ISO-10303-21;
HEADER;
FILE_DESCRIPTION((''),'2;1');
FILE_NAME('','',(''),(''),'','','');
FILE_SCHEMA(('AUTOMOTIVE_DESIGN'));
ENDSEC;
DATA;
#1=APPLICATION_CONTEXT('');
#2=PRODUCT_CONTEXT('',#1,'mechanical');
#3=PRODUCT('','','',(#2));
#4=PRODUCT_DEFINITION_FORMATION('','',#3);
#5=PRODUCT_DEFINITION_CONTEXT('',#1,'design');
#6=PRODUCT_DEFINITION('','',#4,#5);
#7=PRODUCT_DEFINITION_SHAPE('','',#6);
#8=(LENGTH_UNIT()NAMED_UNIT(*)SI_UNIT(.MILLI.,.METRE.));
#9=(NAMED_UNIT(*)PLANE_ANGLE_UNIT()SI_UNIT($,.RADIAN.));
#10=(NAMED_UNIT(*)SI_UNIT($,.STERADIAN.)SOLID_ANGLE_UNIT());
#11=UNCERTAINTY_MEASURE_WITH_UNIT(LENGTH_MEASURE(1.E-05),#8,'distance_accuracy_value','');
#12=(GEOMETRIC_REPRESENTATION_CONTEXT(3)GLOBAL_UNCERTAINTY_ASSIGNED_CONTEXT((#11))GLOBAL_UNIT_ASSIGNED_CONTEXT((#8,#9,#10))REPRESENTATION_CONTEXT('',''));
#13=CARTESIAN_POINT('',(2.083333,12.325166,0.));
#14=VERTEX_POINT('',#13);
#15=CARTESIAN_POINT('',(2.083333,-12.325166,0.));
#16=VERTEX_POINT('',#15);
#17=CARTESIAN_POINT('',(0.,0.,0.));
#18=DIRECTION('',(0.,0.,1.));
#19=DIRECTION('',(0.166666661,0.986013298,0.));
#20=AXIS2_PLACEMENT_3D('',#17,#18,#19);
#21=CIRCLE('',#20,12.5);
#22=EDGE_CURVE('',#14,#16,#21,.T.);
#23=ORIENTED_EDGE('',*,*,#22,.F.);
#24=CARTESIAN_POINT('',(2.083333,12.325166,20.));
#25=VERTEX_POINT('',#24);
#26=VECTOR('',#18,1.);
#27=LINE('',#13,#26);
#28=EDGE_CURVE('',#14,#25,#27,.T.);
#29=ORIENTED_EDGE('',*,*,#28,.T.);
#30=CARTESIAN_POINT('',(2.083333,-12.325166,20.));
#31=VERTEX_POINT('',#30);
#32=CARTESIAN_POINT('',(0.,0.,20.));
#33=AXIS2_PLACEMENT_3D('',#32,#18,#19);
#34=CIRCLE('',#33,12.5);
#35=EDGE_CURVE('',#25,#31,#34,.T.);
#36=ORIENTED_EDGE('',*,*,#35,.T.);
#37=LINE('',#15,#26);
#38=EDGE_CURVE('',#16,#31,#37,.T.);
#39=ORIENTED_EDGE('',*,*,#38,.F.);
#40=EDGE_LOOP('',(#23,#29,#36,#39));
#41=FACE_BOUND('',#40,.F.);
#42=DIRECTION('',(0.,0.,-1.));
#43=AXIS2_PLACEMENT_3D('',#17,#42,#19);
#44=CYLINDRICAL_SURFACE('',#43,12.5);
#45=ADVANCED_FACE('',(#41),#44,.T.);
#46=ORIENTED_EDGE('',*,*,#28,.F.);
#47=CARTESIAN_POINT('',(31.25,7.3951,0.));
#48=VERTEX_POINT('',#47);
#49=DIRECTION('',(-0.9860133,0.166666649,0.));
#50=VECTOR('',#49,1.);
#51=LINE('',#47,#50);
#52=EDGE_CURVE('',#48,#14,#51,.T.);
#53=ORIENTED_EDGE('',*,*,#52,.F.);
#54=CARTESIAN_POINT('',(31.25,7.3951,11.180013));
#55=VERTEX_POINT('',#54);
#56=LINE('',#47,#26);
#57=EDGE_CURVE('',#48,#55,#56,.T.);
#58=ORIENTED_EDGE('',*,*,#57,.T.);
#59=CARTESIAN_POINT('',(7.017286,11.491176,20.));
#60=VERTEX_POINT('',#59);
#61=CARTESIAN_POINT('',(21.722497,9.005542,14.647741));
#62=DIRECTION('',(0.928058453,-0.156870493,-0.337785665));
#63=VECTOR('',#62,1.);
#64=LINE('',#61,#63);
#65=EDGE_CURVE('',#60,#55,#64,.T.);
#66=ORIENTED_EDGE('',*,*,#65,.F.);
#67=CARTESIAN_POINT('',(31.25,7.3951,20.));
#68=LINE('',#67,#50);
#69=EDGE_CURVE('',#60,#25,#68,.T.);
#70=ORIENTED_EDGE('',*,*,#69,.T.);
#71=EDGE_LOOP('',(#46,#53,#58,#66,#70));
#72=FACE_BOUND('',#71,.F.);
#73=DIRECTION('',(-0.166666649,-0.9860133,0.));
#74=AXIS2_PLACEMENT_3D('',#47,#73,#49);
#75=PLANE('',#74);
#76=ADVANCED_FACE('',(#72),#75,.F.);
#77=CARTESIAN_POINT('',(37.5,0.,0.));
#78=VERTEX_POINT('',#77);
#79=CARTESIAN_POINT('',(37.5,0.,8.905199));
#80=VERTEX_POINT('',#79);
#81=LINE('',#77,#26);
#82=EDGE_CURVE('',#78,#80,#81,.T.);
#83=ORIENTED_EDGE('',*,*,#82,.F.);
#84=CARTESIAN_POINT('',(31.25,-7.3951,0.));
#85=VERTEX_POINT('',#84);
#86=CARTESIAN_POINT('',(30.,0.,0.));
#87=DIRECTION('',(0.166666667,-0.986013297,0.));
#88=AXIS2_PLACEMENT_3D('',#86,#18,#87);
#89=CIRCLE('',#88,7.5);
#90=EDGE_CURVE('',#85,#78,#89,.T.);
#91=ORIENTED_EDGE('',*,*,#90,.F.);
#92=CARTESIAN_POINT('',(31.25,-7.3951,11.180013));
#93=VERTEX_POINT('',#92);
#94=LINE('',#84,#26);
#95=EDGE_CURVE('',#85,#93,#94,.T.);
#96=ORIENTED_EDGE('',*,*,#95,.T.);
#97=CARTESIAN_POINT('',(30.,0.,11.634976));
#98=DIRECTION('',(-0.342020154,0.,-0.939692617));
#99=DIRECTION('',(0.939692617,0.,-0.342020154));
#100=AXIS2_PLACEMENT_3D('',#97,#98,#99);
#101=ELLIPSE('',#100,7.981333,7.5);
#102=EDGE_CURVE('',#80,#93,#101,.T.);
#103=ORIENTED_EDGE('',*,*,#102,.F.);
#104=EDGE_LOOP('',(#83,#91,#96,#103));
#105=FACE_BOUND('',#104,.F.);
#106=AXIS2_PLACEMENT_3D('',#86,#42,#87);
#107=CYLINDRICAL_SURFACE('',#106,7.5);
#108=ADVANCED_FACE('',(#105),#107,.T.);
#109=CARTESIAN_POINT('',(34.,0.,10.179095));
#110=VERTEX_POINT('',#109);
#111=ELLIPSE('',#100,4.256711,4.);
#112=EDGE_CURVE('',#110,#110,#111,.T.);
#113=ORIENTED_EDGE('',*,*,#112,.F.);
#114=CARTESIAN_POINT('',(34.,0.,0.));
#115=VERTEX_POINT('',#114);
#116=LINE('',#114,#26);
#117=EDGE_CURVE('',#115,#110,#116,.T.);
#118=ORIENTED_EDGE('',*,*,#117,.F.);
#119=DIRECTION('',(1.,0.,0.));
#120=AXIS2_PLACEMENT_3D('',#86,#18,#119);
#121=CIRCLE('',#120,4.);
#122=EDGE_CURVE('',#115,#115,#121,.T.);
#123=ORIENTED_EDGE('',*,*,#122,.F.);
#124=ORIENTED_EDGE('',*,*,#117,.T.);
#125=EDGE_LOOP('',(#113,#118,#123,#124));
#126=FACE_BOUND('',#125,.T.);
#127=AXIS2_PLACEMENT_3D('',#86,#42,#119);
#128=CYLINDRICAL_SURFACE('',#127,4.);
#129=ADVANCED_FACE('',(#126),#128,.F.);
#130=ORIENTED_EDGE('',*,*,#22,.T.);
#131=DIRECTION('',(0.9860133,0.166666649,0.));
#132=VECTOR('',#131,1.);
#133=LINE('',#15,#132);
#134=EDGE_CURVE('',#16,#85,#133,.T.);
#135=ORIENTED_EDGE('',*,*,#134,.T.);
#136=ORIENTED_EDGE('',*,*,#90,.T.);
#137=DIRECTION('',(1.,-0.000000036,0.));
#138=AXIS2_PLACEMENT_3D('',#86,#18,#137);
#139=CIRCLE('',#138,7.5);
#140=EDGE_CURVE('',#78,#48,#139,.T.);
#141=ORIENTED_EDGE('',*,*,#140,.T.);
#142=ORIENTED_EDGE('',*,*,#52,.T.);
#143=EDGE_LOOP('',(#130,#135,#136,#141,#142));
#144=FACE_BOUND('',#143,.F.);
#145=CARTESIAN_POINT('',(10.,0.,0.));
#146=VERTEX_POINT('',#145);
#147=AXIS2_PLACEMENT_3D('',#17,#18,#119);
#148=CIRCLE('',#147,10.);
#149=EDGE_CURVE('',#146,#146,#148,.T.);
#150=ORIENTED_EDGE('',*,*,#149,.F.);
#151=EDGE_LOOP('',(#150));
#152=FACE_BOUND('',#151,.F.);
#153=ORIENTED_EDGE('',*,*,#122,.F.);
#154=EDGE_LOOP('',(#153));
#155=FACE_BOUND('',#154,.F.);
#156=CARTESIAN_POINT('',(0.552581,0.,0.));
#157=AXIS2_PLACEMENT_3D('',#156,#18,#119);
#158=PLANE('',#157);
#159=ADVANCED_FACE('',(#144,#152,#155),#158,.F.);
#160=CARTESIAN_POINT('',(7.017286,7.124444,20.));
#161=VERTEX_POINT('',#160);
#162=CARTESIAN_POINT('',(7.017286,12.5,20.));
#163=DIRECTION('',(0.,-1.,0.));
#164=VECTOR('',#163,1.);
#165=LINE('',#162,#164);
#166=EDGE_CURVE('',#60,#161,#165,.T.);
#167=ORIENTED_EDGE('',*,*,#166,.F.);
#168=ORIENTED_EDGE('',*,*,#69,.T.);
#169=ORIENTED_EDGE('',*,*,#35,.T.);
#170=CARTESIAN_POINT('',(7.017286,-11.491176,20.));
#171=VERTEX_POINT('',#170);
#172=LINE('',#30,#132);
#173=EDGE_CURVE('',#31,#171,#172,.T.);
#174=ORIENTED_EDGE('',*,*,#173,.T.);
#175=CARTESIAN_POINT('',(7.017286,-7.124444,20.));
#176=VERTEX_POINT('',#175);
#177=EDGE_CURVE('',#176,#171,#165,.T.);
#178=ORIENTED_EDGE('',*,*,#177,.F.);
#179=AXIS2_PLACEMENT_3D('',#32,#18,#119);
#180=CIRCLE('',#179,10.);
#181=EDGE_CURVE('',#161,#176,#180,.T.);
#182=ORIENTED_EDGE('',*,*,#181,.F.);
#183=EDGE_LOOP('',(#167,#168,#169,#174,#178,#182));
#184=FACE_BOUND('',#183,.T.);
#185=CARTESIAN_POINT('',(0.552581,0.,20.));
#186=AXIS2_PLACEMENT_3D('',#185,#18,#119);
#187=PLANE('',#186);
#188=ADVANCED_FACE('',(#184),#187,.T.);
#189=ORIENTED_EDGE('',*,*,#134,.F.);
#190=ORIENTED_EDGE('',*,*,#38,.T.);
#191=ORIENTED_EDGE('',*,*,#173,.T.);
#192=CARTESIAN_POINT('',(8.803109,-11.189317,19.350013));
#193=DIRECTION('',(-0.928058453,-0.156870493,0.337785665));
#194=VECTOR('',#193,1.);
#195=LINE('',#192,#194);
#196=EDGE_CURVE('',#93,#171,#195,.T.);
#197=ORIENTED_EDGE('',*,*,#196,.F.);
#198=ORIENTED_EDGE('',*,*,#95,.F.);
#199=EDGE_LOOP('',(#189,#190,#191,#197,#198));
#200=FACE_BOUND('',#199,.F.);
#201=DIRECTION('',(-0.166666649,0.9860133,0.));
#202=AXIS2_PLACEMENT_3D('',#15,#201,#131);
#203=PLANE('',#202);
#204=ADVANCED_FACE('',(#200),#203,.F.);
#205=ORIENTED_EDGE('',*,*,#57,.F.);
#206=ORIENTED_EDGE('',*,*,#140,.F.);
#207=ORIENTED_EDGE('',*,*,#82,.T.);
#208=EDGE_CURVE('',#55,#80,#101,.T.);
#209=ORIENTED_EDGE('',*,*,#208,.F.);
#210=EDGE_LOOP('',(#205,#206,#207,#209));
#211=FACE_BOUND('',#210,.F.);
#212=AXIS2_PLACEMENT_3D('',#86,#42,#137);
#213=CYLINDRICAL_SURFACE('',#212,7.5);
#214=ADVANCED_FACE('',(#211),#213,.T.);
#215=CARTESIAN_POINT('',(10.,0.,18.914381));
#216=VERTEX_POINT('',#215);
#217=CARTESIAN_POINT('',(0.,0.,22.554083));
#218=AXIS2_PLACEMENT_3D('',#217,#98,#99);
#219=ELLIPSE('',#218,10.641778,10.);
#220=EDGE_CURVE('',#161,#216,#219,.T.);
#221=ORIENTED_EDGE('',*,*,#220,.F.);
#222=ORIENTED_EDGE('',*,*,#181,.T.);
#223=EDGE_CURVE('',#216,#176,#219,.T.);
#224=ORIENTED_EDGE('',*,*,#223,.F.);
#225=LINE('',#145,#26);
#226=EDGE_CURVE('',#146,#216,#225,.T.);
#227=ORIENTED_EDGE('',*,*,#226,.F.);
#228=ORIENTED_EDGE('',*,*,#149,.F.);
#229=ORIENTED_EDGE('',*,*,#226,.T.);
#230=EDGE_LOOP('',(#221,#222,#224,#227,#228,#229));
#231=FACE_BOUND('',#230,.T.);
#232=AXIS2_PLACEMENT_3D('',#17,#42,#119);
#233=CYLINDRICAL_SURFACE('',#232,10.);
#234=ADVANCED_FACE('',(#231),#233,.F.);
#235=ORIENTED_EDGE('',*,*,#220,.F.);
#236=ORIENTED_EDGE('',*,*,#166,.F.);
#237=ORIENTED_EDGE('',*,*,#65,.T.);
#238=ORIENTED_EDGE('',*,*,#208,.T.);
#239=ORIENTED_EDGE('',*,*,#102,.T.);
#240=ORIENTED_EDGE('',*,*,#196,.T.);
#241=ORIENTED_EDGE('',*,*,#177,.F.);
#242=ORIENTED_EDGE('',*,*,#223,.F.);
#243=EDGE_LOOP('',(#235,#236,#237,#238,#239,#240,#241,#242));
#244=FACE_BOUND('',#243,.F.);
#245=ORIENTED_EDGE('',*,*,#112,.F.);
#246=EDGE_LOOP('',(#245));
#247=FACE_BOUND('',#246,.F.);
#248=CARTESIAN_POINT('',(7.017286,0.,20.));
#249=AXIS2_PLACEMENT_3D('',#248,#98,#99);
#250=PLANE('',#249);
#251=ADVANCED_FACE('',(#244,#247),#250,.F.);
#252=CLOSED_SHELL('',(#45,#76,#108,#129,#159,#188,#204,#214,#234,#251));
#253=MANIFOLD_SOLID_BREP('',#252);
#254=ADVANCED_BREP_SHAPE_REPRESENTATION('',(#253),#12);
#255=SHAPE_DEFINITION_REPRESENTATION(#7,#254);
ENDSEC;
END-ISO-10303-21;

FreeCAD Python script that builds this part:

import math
import FreeCAD as App
import Part
import Sketcher

V = App.Vector
Q = App.Units.Quantity


def add_polygon(sketch, points):
    """Adds a closed chain of lines whose ends are joined by coincident constraints."""
    first, n = sketch.GeometryCount, len(points)
    for a, b in zip(points, points[1:] + points[:1]):
        sketch.addGeometry(Part.LineSegment(App.Vector(*a, 0), App.Vector(*b, 0)), False)
    for i in range(n):
        sketch.addConstraint(Sketcher.Constraint("Coincident", first + i, 2, first + (i + 1) % n, 1))

doc = App.newDocument("Part")
body = doc.addObject("PartDesign::Body", "Body")

# Sketch on XY plane
sketch1 = body.newObject("Sketcher::SketchObject", "Sketch")
sketch1.AttachmentSupport = (doc.getObject("XY_Plane"), [""])
sketch1.MapMode = "FlatFace"
sketch1.addGeometry([
    Part.ArcOfCircle(Part.Circle(V(0, 0, 0), V(0, 0, 1), 12.5), math.radians(80), math.radians(280)),  # 0
    Part.LineSegment(V(2.1, -12.3, 0), V(31.2, -7.4, 0)),  # 1
    Part.ArcOfCircle(Part.Circle(V(30, 0, 0), V(0, 0, 1), 7.5), math.radians(-80), math.radians(0)),  # 2
    Part.ArcOfCircle(Part.Circle(V(30, 0, 0), V(0, 0, 1), 7.5), math.radians(0), math.radians(80)),  # 3
    Part.LineSegment(V(31.2, 7.4, 0), V(2.1, 12.3, 0)),  # 4
    Part.Circle(V(0, 0, 0), V(0, 0, 1), 10),  # 5
    Part.Circle(V(30, 0, 0), V(0, 0, 1), 4),  # 6
], False)
sketch1.addConstraint([
    Sketcher.Constraint("Tangent", 0, 2, 1, 1),
    Sketcher.Constraint("Tangent", 1, 2, 2, 1),
    Sketcher.Constraint("Tangent", 2, 2, 3, 1),
    Sketcher.Constraint("Tangent", 3, 2, 4, 1),
    Sketcher.Constraint("Tangent", 4, 2, 0, 1),
    Sketcher.Constraint("Coincident", 0, 3, -1, 1),
    Sketcher.Constraint("Coincident", 5, 3, -1, 1),
    Sketcher.Constraint("Coincident", 6, 3, 2, 3),
    Sketcher.Constraint("Equal", 2, 3),
    Sketcher.Constraint("PointOnObject", 2, 3, -1),
    Sketcher.Constraint("PointOnObject", 2, 2, -1),
    Sketcher.Constraint("Diameter", 5, 20.0),
    Sketcher.Constraint("Diameter", 6, 8.0),
    Sketcher.Constraint("Radius", 0, 12.5),
    Sketcher.Constraint("Radius", 2, 7.5),
    Sketcher.Constraint("DistanceX", -1, 1, 2, 3, 30.0),
])
pad1 = body.newObject("PartDesign::Pad", "Pad")
pad1.Profile = sketch1
pad1.Length = 20

# Sketch on XZ plane
sketch2 = body.newObject("Sketcher::SketchObject", "Sketch001")
sketch2.AttachmentSupport = (doc.getObject("XZ_Plane"), [""])
sketch2.MapMode = "FlatFace"
add_polygon(sketch2, [(44, 20), (7, 20), (44, 7)])  # lines 0-2
sketch2.addConstraint([
    Sketcher.Constraint("Horizontal", 0),
    Sketcher.Constraint("Vertical", 2),
    Sketcher.Constraint("Angle", 1, Q("-20.000001 deg")),
    Sketcher.Constraint("Distance", 1, 39.0),
    Sketcher.Constraint("DistanceY", -1, 1, 0, 2, 20.0),
    Sketcher.Constraint("DistanceX", -1, 1, 0, 2, 7.017286),
])
pocket1 = body.newObject("PartDesign::Pocket", "Pocket")
pocket1.Profile = sketch2
pocket1.Length = 25
pocket1.Midplane = True

doc.recompute()
